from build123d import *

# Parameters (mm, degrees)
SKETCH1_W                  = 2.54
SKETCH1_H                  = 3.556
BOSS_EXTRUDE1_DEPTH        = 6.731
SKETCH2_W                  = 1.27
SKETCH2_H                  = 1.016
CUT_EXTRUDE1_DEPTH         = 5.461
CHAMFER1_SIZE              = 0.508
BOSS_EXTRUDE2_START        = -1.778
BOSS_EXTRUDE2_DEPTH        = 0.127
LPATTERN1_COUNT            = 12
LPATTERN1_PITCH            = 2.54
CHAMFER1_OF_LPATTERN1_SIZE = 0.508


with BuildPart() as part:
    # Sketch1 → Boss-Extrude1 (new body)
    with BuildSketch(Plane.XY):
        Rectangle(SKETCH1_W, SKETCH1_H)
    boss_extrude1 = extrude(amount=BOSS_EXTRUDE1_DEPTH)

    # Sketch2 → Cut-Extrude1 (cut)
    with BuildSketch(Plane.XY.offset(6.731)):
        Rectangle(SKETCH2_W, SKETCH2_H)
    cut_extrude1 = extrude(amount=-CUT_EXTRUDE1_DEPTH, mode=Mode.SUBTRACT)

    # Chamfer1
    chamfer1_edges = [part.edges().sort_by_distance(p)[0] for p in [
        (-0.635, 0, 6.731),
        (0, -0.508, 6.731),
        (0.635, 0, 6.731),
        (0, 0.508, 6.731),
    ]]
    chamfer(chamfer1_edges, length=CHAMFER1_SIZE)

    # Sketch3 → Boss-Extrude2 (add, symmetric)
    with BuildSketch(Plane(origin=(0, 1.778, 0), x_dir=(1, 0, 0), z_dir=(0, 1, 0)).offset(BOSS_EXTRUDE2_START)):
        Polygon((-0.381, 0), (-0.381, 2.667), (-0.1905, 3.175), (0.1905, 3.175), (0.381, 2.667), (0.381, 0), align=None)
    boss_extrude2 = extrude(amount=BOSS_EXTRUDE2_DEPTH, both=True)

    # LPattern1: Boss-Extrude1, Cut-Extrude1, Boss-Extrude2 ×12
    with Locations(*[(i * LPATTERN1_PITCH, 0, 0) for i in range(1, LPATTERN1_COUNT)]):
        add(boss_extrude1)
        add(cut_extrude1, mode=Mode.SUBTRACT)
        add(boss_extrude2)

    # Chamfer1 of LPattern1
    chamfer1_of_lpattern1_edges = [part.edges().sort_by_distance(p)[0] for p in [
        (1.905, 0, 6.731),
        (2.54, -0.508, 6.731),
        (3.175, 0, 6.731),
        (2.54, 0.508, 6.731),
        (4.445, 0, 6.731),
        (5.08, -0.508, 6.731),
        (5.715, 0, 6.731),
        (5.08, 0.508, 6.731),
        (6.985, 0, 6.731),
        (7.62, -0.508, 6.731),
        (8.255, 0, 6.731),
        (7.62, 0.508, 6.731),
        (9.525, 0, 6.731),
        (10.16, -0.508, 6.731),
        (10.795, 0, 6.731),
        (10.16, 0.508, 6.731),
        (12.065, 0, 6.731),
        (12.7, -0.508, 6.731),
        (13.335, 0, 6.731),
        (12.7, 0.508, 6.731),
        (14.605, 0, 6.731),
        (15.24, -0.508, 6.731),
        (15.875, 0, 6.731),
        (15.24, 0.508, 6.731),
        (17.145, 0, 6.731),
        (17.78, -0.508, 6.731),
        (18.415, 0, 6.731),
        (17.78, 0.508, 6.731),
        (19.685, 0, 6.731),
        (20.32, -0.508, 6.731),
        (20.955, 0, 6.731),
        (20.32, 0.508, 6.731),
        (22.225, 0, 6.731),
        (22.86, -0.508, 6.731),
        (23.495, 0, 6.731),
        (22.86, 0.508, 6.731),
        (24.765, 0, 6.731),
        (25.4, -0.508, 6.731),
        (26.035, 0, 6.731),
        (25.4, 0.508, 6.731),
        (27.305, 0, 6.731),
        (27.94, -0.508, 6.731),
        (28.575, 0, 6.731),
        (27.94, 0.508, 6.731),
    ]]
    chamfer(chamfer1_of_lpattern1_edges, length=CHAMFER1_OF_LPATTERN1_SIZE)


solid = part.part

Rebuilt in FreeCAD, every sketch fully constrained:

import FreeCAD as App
import Part
import Sketcher
Q = App.Units.Quantity


def edges_at(feature, points):
    """Names of the edges that pass closest to the given points."""
    edges = feature.Shape.Edges
    near = lambda p: min(range(len(edges)), key=lambda i: edges[i].distToShape(Part.Vertex(*p))[0])
    return sorted({f"Edge{near(p) + 1}" for p in points})

doc = App.newDocument("Part")
body = doc.addObject("PartDesign::Body", "Body")

# Sketch on XY plane
sketch1 = body.newObject("Sketcher::SketchObject", "Sketch")
sketch1.AttachmentSupport = (doc.getObject("XY_Plane"), [""])
sketch1.MapMode = "FlatFace"
sketch1.addGeometry(Part.LineSegment(App.Vector(-1.3, 1.8, 0), App.Vector(-1.3, -1.8, 0)), False)
sketch1.addGeometry(Part.LineSegment(App.Vector(-1.3, -1.8, 0), App.Vector(1.3, -1.8, 0)), False)
sketch1.addGeometry(Part.LineSegment(App.Vector(1.3, -1.8, 0), App.Vector(1.3, 1.8, 0)), False)
sketch1.addGeometry(Part.LineSegment(App.Vector(1.3, 1.8, 0), App.Vector(-1.3, 1.8, 0)), False)
sketch1.addConstraint(Sketcher.Constraint("Coincident", 0, 2, 1, 1))
sketch1.addConstraint(Sketcher.Constraint("Coincident", 1, 2, 2, 1))
sketch1.addConstraint(Sketcher.Constraint("Coincident", 2, 2, 3, 1))
sketch1.addConstraint(Sketcher.Constraint("Coincident", 3, 2, 0, 1))
sketch1.addConstraint(Sketcher.Constraint("Vertical", 0))
sketch1.addConstraint(Sketcher.Constraint("Horizontal", 1))
sketch1.addConstraint(Sketcher.Constraint("Vertical", 2))
sketch1.addConstraint(Sketcher.Constraint("Horizontal", 3))
sketch1.addConstraint(Sketcher.Constraint("Symmetric", 0, 2, 2, 2, -1, 1))
sketch1.addConstraint(Sketcher.Constraint("DistanceX", 1, 1, 1, 2, Q("0.1 in")))
sketch1.addConstraint(Sketcher.Constraint("DistanceY", 0, 2, 0, 1, Q("0.14 in")))
pad1 = body.newObject("PartDesign::Pad", "Pad")
pad1.Profile = sketch1
pad1.Length = Q("0.265 in")

# Sketch on XY plane
sketch2 = body.newObject("Sketcher::SketchObject", "Sketch001")
sketch2.AttachmentSupport = (doc.getObject("XY_Plane"), [""])
sketch2.MapMode = "FlatFace"
sketch2.AttachmentOffset = App.Placement(App.Vector(0, 0, 0.265 * 25.4), App.Rotation())
sketch2.addGeometry(Part.LineSegment(App.Vector(-0.6, 0.5, 0), App.Vector(-0.6, -0.5, 0)), False)
sketch2.addGeometry(Part.LineSegment(App.Vector(-0.6, -0.5, 0), App.Vector(0.6, -0.5, 0)), False)
sketch2.addGeometry(Part.LineSegment(App.Vector(0.6, -0.5, 0), App.Vector(0.6, 0.5, 0)), False)
sketch2.addGeometry(Part.LineSegment(App.Vector(0.6, 0.5, 0), App.Vector(-0.6, 0.5, 0)), False)
sketch2.addConstraint(Sketcher.Constraint("Coincident", 0, 2, 1, 1))
sketch2.addConstraint(Sketcher.Constraint("Coincident", 1, 2, 2, 1))
sketch2.addConstraint(Sketcher.Constraint("Coincident", 2, 2, 3, 1))
sketch2.addConstraint(Sketcher.Constraint("Coincident", 3, 2, 0, 1))
sketch2.addConstraint(Sketcher.Constraint("Vertical", 0))
sketch2.addConstraint(Sketcher.Constraint("Horizontal", 1))
sketch2.addConstraint(Sketcher.Constraint("Vertical", 2))
sketch2.addConstraint(Sketcher.Constraint("Horizontal", 3))
sketch2.addConstraint(Sketcher.Constraint("Symmetric", 0, 2, 2, 2, -1, 1))
sketch2.addConstraint(Sketcher.Constraint("DistanceX", 1, 1, 1, 2, Q("0.05 in")))
sketch2.addConstraint(Sketcher.Constraint("DistanceY", 0, 2, 0, 1, Q("0.04 in")))
pocket1 = body.newObject("PartDesign::Pocket", "Pocket")
pocket1.Profile = sketch2
pocket1.Length = Q("0.215 in")
doc.recompute()

chamfer = body.newObject("PartDesign::Chamfer", "Chamfer")
chamfer.Base = (pocket1, edges_at(pocket1, [
    (-0.635, 0, 6.731),
    (0, -0.508, 6.731),
    (0.635, 0, 6.731),
    (0, 0.508, 6.731),
]))
chamfer.Size = Q("0.02 in")

# Sketch on XZ plane
sketch3 = body.newObject("Sketcher::SketchObject", "Sketch002")
sketch3.AttachmentSupport = (doc.getObject("XZ_Plane"), [""])
sketch3.MapMode = "FlatFace"
sketch3.addGeometry(Part.LineSegment(App.Vector(-0.38, -2.67, 0), App.Vector(-0.38, 0, 0)), False)
sketch3.addGeometry(Part.LineSegment(App.Vector(-0.38, 0, 0), App.Vector(0.38, 0, 0)), False)
sketch3.addGeometry(Part.LineSegment(App.Vector(0.38, 0, 0), App.Vector(0.38, -2.67, 0)), False)
sketch3.addGeometry(Part.LineSegment(App.Vector(0.38, -2.67, 0), App.Vector(0.19, -3.17, 0)), False)
sketch3.addGeometry(Part.LineSegment(App.Vector(0.19, -3.17, 0), App.Vector(-0.19, -3.17, 0)), False)
sketch3.addGeometry(Part.LineSegment(App.Vector(-0.19, -3.17, 0), App.Vector(-0.38, -2.67, 0)), False)
sketch3.addConstraint(Sketcher.Constraint("Coincident", 0, 2, 1, 1))
sketch3.addConstraint(Sketcher.Constraint("Coincident", 1, 2, 2, 1))
sketch3.addConstraint(Sketcher.Constraint("Coincident", 2, 2, 3, 1))
sketch3.addConstraint(Sketcher.Constraint("Coincident", 3, 2, 4, 1))
sketch3.addConstraint(Sketcher.Constraint("Coincident", 4, 2, 5, 1))
sketch3.addConstraint(Sketcher.Constraint("Coincident", 5, 2, 0, 1))
sketch3.addConstraint(Sketcher.Constraint("Vertical", 0))
sketch3.addConstraint(Sketcher.Constraint("Horizontal", 1))
sketch3.addConstraint(Sketcher.Constraint("Vertical", 2))
sketch3.addConstraint(Sketcher.Constraint("Horizontal", 4))
sketch3.addConstraint(Sketcher.Constraint("Symmetric", 0, 2, 1, 2, -1, 1))
sketch3.addConstraint(Sketcher.Constraint("Horizontal", 2, 2, 5, 2))
sketch3.addConstraint(Sketcher.Constraint("Equal", 3, 5))
sketch3.addConstraint(Sketcher.Constraint("DistanceX", 1, 1, 1, 2, Q("0.03 in")))
sketch3.addConstraint(Sketcher.Constraint("DistanceX", 4, 2, 4, 1, Q("0.015 in")))
sketch3.addConstraint(Sketcher.Constraint("DistanceY", 0, 1, 0, 2, Q("0.105 in")))
sketch3.addConstraint(Sketcher.Constraint("DistanceY", 3, 2, 2, 2, Q("0.02 in")))
pad2 = body.newObject("PartDesign::Pad", "Pad001")
pad2.Profile = sketch3
pad2.Length = Q("0.01 in")
pad2.Midplane = True
doc.recompute()

linearpattern = body.newObject("PartDesign::LinearPattern", "LinearPattern")
linearpattern.Originals = [pad1, pocket1, pad2]
linearpattern.Direction = (doc.getObject("X_Axis"), [""])
linearpattern.Mode = "offset"
linearpattern.Offset = Q("0.1 in")
linearpattern.Occurrences = 12
body.Tip = linearpattern
doc.recompute()

chamfer2 = body.newObject("PartDesign::Chamfer", "Chamfer001")
chamfer2.Base = (linearpattern, edges_at(linearpattern, [
    (1.905, 0, 6.731),
    (2.54, -0.508, 6.731),
    (3.175, 0, 6.731),
    (2.54, 0.508, 6.731),
    (4.445, 0, 6.731),
    (5.08, -0.508, 6.731),
    (5.715, 0, 6.731),
    (5.08, 0.508, 6.731),
    (6.985, 0, 6.731),
    (7.62, -0.508, 6.731),
    (8.255, 0, 6.731),
    (7.62, 0.508, 6.731),
    (9.525, 0, 6.731),
    (10.16, -0.508, 6.731),
    (10.795, 0, 6.731),
    (10.16, 0.508, 6.731),
    (12.065, 0, 6.731),
    (12.7, -0.508, 6.731),
    (13.335, 0, 6.731),
    (12.7, 0.508, 6.731),
    (14.605, 0, 6.731),
    (15.24, -0.508, 6.731),
    (15.875, 0, 6.731),
    (15.24, 0.508, 6.731),
    (17.145, 0, 6.731),
    (17.78, -0.508, 6.731),
    (18.415, 0, 6.731),
    (17.78, 0.508, 6.731),
    (19.685, 0, 6.731),
    (20.32, -0.508, 6.731),
    (20.955, 0, 6.731),
    (20.32, 0.508, 6.731),
    (22.225, 0, 6.731),
    (22.86, -0.508, 6.731),
    (23.495, 0, 6.731),
    (22.86, 0.508, 6.731),
    (24.765, 0, 6.731),
    (25.4, -0.508, 6.731),
    (26.035, 0, 6.731),
    (25.4, 0.508, 6.731),
    (27.305, 0, 6.731),
    (27.94, -0.508, 6.731),
    (28.575, 0, 6.731),
    (27.94, 0.508, 6.731),
]))
chamfer2.Size = Q("0.02 in")

doc.recompute()
